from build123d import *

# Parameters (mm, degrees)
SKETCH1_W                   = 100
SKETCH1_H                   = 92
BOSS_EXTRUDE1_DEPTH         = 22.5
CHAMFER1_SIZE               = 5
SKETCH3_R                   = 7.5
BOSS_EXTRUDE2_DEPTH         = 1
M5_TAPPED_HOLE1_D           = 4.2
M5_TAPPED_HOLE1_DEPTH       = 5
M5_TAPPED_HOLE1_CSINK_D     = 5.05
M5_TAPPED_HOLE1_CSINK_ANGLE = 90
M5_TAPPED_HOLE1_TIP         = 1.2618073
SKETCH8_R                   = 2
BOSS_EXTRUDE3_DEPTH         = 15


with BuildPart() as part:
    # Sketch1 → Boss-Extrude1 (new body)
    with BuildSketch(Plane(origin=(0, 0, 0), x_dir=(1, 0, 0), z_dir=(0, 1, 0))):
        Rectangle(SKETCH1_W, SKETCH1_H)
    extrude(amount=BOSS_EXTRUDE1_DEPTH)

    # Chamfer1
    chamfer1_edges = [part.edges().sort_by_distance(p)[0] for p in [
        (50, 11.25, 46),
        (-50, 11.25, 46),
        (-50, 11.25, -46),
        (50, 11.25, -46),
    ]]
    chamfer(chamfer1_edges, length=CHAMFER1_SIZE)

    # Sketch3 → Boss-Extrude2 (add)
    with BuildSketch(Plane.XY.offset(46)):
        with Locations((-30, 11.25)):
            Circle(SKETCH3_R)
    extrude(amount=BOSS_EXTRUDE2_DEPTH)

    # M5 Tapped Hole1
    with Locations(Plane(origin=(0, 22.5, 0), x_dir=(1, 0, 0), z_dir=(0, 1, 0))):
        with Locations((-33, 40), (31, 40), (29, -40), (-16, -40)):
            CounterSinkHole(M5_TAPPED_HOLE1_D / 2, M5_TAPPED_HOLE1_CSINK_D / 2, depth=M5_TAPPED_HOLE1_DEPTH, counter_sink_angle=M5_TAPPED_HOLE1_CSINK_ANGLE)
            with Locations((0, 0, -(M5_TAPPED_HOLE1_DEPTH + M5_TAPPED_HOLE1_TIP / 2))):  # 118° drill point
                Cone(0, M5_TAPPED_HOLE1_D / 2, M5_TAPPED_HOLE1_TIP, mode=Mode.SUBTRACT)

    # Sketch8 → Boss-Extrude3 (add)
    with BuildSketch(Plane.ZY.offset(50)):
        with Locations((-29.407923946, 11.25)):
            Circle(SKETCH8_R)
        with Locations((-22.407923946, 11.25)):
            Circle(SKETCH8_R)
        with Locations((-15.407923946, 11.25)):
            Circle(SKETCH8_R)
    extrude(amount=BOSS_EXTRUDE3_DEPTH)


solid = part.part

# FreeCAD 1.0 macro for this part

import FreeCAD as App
import Part
import Sketcher
from FreeCAD import Vector
Q = App.Units.Quantity


def edges_at(feature, points):
    """Names of the edges that pass closest to the given points."""
    edges = feature.Shape.Edges
    near = lambda p: min(range(len(edges)), key=lambda i: edges[i].distToShape(Part.Vertex(*p))[0])
    return sorted({f"Edge{near(p) + 1}" for p in points})


def add_polygon(sketch, points):
    """Adds a closed chain of lines whose ends are joined by coincident constraints."""
    first, n = sketch.GeometryCount, len(points)
    for a, b in zip(points, points[1:] + points[:1]):
        sketch.addGeometry(Part.LineSegment(App.Vector(*a, 0), App.Vector(*b, 0)), False)
    for i in range(n):
        sketch.addConstraint(Sketcher.Constraint("Coincident", first + i, 2, first + (i + 1) % n, 1))

doc = App.newDocument("Part")
body = doc.addObject("PartDesign::Body", "Body")

sketch1 = body.newObject("Sketcher::SketchObject", "Sketch")
sketch1.AttachmentSupport = (doc.getObject("XZ_Plane"), [""])
sketch1.MapMode = "FlatFace"
add_polygon(sketch1, [(-50, -46), (-50, 46), (50, 46), (50, -46)])
sketch1.addConstraint([
    Sketcher.Constraint("Vertical", 0),
    Sketcher.Constraint("Horizontal", 1),
    Sketcher.Constraint("Vertical", 2),
    Sketcher.Constraint("Horizontal", 3),
    Sketcher.Constraint("Symmetric", 0, 2, 2, 2, -1, 1),
    Sketcher.Constraint("DistanceX", 1, 1, 1, 2, Q("100 mm")),
    Sketcher.Constraint("DistanceY", 0, 1, 0, 2, Q("92 mm")),
])
pad1 = body.newObject("PartDesign::Pad", "Pad")
pad1.Profile = sketch1
pad1.Length = 22.5
pad1.Reversed = True
doc.recompute()

chamfer = body.newObject("PartDesign::Chamfer", "Chamfer")
chamfer.Base = (pad1, edges_at(pad1, [
    (50, 11.25, 46),
    (-50, 11.25, 46),
    (-50, 11.25, -46),
    (50, 11.25, -46),
]))
chamfer.Size = 5

sketch2 = body.newObject("Sketcher::SketchObject", "Sketch001")
sketch2.AttachmentSupport = (doc.getObject("XY_Plane"), [""])
sketch2.MapMode = "FlatFace"
sketch2.AttachmentOffset = App.Placement(Vector(0, 0, 46), App.Rotation())
sketch2.addGeometry(Part.Circle(Vector(-30, 11, 0), Vector(0, 0, 1), 8), False)
sketch2.addConstraint([
    Sketcher.Constraint("Diameter", 0, Q("15 mm")),
    Sketcher.Constraint("DistanceX", 0, 3, -1, 1, Q("30 mm")),
    Sketcher.Constraint("DistanceY", -1, 1, 0, 3, Q("11.25 mm")),
])
pad2 = body.newObject("PartDesign::Pad", "Pad001")
pad2.Profile = sketch2
pad2.Length = 1

sketch3 = body.newObject("Sketcher::SketchObject", "Sketch002")
sketch3.AttachmentSupport = (doc.getObject("XZ_Plane"), [""])
sketch3.MapMode = "FlatFace"
sketch3.AttachmentOffset = App.Placement(Vector(0, 0, -22.5), App.Rotation())
sketch3.addGeometry([
    Part.Circle(Vector(-33, -40, 0), Vector(0, 0, 1), 2.1),
    Part.Circle(Vector(31, -40, 0), Vector(0, 0, 1), 2.1),
    Part.Circle(Vector(29, 40, 0), Vector(0, 0, 1), 2.1),
    Part.Circle(Vector(-16, 40, 0), Vector(0, 0, 1), 2.1),
], False)
sketch3.addConstraint([
    Sketcher.Constraint("Equal", 0, 1),
    Sketcher.Constraint("Equal", 1, 2),
    Sketcher.Constraint("Equal", 2, 3),
    Sketcher.Constraint("Horizontal", 0, 3, 1, 3),
    Sketcher.Constraint("Horizontal", 2, 3, 3, 3),
    Sketcher.Constraint("Diameter", 0, Q("4.2 mm")),
    Sketcher.Constraint("DistanceX", 0, 3, -1, 1, Q("33 mm")),
    Sketcher.Constraint("DistanceY", 0, 3, -1, 1, Q("40 mm")),
    Sketcher.Constraint("DistanceX", -1, 1, 1, 3, Q("31 mm")),
    Sketcher.Constraint("DistanceX", -1, 1, 2, 3, Q("29 mm")),
    Sketcher.Constraint("DistanceY", -1, 1, 2, 3, Q("40 mm")),
    Sketcher.Constraint("DistanceX", 3, 3, -1, 1, Q("16 mm")),
])
doc.recompute()
hole = body.newObject("PartDesign::Hole", "Hole")
hole.Profile = sketch3
hole.ThreadType = "None"
hole.Diameter = 4.2
hole.DepthType = "Dimension"
hole.Depth = 5
hole.DrillPoint = "Angled"
hole.DrillPointAngle = 118
hole.HoleCutType = "Countersink"
hole.HoleCutDiameter = 5.05
hole.HoleCutCountersinkAngle = 90
hole.Reversed = True

sketch4 = body.newObject("Sketcher::SketchObject", "Sketch003")
sketch4.AttachmentSupport = (doc.getObject("YZ_Plane"), [""])
sketch4.MapMode = "FlatFace"
sketch4.AttachmentOffset = App.Placement(Vector(0, 0, -50), App.Rotation())
sketch4.addGeometry([
    Part.Circle(Vector(11.2, -29.4, 0), Vector(0, 0, 1), 2),
    Part.Circle(Vector(11.2, -22.4, 0), Vector(0, 0, 1), 2),
    Part.Circle(Vector(11.2, -15.4, 0), Vector(0, 0, 1), 2),
], False)
sketch4.addConstraint([
    Sketcher.Constraint("Equal", 0, 1),
    Sketcher.Constraint("Equal", 1, 2),
    Sketcher.Constraint("Vertical", 0, 3, 1, 3),
    Sketcher.Constraint("Vertical", 1, 3, 2, 3),
    Sketcher.Constraint("Diameter", 0, Q("4 mm")),
    Sketcher.Constraint("DistanceY", 0, 3, 1, 3, Q("7 mm")),
    Sketcher.Constraint("DistanceY", 1, 3, 2, 3, Q("7 mm")),
    Sketcher.Constraint("DistanceX", -1, 1, 0, 3, Q("11.25 mm")),
    Sketcher.Constraint("DistanceY", 0, 3, -1, 1, Q("29.407924 mm")),
])
pad3 = body.newObject("PartDesign::Pad", "Pad002")
pad3.Profile = sketch4
pad3.Length = 15
pad3.Reversed = True

doc.recompute()
